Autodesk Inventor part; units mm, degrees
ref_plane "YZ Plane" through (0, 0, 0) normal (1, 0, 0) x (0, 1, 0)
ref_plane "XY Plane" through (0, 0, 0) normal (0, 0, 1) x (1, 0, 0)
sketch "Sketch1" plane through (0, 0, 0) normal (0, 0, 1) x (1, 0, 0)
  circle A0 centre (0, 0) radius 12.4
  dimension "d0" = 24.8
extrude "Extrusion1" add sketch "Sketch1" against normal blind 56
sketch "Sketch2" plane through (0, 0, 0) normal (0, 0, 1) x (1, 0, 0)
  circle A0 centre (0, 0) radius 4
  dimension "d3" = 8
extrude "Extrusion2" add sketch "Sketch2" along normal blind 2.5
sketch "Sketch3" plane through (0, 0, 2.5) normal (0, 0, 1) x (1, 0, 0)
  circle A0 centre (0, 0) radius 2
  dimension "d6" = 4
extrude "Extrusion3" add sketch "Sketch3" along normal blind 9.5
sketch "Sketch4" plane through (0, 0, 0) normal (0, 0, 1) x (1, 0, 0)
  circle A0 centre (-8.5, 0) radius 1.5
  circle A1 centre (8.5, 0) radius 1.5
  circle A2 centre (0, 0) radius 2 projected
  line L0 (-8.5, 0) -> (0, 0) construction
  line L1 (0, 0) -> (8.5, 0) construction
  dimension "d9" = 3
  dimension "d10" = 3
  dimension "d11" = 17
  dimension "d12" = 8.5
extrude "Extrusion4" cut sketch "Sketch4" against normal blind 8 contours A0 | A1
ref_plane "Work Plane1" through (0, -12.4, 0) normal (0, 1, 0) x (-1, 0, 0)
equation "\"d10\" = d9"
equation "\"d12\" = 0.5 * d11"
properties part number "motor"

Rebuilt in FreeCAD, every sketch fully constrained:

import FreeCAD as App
import Part
import Sketcher

V = App.Vector
Q = App.Units.Quantity

doc = App.newDocument("Part")
params = doc.addObject("Spreadsheet::Sheet", "Params")
for row, (alias, value) in enumerate([
    ("sketch1_diameter", "24.8 mm"),
    ("pad1_length", "56 mm"),
    ("sketch2_diameter", "8 mm"),
    ("pad2_length", "2.5 mm"),
    ("sketch3_diameter", "4 mm"),
    ("pad3_length", "9.5 mm"),
    ("sketch4_diameter", "3 mm"),
    ("pocket1_length", "8 mm"),
], start=1):
    params.set(f"A{row}", alias)
    params.set(f"B{row}", "=" + value)
    params.setAlias(f"B{row}", alias)

body = doc.addObject("PartDesign::Body", "Body")

# Sketch on XY plane
sketch1 = body.newObject("Sketcher::SketchObject", "Sketch")
sketch1.AttachmentSupport = (doc.getObject("XY_Plane"), [""])
sketch1.MapMode = "FlatFace"
sketch1.addGeometry(Part.Circle(V(0, 0, 0), V(0, 0, 1), 12), False)
sketch1.addConstraint([
    Sketcher.Constraint("Coincident", 0, 3, -1, 1),
    Sketcher.Constraint("Diameter", 0, Q("24.8 mm")),
])
sketch1.setExpression("Constraints[1]", "Params.sketch1_diameter")
pad1 = body.newObject("PartDesign::Pad", "Pad")
pad1.Profile = sketch1
pad1.setExpression("Length", "Params.pad1_length")
pad1.Reversed = True

# Sketch on XY plane
sketch2 = body.newObject("Sketcher::SketchObject", "Sketch001")
sketch2.AttachmentSupport = (doc.getObject("XY_Plane"), [""])
sketch2.MapMode = "FlatFace"
sketch2.addGeometry(Part.Circle(V(0, 0, 0), V(0, 0, 1), 4), False)
sketch2.addConstraint([
    Sketcher.Constraint("Coincident", 0, 3, -1, 1),
    Sketcher.Constraint("Diameter", 0, Q("8 mm")),
])
sketch2.setExpression("Constraints[1]", "Params.sketch2_diameter")
pad2 = body.newObject("PartDesign::Pad", "Pad001")
pad2.Profile = sketch2
pad2.setExpression("Length", "Params.pad2_length")

# Sketch on XY plane
sketch3 = body.newObject("Sketcher::SketchObject", "Sketch002")
sketch3.AttachmentSupport = (doc.getObject("XY_Plane"), [""])
sketch3.MapMode = "FlatFace"
sketch3.AttachmentOffset = App.Placement(V(0, 0, 2.5), App.Rotation())
sketch3.addGeometry(Part.Circle(V(0, 0, 0), V(0, 0, 1), 2), False)
sketch3.addConstraint([
    Sketcher.Constraint("Coincident", 0, 3, -1, 1),
    Sketcher.Constraint("Diameter", 0, Q("4 mm")),
])
sketch3.setExpression("Constraints[1]", "Params.sketch3_diameter")
pad3 = body.newObject("PartDesign::Pad", "Pad002")
pad3.Profile = sketch3
pad3.setExpression("Length", "Params.pad3_length")

# Sketch on XY plane
sketch4 = body.newObject("Sketcher::SketchObject", "Sketch003")
sketch4.AttachmentSupport = (doc.getObject("XY_Plane"), [""])
sketch4.MapMode = "FlatFace"
sketch4.addGeometry([
    Part.Circle(V(-8.5, 0, 0), V(0, 0, 1), 1.5),
    Part.Circle(V(8.5, 0, 0), V(0, 0, 1), 1.5),
], False)
sketch4.addConstraint([
    Sketcher.Constraint("Equal", 0, 1),
    Sketcher.Constraint("Symmetric", 0, 3, 1, 3, -1, 1),
    Sketcher.Constraint("PointOnObject", 0, 3, -1),
    Sketcher.Constraint("Diameter", 0, Q("3 mm")),
    Sketcher.Constraint("DistanceX", 0, 3, 1, 3, Q("17 mm")),
])
sketch4.setExpression("Constraints[3]", "Params.sketch4_diameter")
pocket1 = body.newObject("PartDesign::Pocket", "Pocket")
pocket1.Profile = sketch4
pocket1.setExpression("Length", "Params.pocket1_length")

doc.recompute()
